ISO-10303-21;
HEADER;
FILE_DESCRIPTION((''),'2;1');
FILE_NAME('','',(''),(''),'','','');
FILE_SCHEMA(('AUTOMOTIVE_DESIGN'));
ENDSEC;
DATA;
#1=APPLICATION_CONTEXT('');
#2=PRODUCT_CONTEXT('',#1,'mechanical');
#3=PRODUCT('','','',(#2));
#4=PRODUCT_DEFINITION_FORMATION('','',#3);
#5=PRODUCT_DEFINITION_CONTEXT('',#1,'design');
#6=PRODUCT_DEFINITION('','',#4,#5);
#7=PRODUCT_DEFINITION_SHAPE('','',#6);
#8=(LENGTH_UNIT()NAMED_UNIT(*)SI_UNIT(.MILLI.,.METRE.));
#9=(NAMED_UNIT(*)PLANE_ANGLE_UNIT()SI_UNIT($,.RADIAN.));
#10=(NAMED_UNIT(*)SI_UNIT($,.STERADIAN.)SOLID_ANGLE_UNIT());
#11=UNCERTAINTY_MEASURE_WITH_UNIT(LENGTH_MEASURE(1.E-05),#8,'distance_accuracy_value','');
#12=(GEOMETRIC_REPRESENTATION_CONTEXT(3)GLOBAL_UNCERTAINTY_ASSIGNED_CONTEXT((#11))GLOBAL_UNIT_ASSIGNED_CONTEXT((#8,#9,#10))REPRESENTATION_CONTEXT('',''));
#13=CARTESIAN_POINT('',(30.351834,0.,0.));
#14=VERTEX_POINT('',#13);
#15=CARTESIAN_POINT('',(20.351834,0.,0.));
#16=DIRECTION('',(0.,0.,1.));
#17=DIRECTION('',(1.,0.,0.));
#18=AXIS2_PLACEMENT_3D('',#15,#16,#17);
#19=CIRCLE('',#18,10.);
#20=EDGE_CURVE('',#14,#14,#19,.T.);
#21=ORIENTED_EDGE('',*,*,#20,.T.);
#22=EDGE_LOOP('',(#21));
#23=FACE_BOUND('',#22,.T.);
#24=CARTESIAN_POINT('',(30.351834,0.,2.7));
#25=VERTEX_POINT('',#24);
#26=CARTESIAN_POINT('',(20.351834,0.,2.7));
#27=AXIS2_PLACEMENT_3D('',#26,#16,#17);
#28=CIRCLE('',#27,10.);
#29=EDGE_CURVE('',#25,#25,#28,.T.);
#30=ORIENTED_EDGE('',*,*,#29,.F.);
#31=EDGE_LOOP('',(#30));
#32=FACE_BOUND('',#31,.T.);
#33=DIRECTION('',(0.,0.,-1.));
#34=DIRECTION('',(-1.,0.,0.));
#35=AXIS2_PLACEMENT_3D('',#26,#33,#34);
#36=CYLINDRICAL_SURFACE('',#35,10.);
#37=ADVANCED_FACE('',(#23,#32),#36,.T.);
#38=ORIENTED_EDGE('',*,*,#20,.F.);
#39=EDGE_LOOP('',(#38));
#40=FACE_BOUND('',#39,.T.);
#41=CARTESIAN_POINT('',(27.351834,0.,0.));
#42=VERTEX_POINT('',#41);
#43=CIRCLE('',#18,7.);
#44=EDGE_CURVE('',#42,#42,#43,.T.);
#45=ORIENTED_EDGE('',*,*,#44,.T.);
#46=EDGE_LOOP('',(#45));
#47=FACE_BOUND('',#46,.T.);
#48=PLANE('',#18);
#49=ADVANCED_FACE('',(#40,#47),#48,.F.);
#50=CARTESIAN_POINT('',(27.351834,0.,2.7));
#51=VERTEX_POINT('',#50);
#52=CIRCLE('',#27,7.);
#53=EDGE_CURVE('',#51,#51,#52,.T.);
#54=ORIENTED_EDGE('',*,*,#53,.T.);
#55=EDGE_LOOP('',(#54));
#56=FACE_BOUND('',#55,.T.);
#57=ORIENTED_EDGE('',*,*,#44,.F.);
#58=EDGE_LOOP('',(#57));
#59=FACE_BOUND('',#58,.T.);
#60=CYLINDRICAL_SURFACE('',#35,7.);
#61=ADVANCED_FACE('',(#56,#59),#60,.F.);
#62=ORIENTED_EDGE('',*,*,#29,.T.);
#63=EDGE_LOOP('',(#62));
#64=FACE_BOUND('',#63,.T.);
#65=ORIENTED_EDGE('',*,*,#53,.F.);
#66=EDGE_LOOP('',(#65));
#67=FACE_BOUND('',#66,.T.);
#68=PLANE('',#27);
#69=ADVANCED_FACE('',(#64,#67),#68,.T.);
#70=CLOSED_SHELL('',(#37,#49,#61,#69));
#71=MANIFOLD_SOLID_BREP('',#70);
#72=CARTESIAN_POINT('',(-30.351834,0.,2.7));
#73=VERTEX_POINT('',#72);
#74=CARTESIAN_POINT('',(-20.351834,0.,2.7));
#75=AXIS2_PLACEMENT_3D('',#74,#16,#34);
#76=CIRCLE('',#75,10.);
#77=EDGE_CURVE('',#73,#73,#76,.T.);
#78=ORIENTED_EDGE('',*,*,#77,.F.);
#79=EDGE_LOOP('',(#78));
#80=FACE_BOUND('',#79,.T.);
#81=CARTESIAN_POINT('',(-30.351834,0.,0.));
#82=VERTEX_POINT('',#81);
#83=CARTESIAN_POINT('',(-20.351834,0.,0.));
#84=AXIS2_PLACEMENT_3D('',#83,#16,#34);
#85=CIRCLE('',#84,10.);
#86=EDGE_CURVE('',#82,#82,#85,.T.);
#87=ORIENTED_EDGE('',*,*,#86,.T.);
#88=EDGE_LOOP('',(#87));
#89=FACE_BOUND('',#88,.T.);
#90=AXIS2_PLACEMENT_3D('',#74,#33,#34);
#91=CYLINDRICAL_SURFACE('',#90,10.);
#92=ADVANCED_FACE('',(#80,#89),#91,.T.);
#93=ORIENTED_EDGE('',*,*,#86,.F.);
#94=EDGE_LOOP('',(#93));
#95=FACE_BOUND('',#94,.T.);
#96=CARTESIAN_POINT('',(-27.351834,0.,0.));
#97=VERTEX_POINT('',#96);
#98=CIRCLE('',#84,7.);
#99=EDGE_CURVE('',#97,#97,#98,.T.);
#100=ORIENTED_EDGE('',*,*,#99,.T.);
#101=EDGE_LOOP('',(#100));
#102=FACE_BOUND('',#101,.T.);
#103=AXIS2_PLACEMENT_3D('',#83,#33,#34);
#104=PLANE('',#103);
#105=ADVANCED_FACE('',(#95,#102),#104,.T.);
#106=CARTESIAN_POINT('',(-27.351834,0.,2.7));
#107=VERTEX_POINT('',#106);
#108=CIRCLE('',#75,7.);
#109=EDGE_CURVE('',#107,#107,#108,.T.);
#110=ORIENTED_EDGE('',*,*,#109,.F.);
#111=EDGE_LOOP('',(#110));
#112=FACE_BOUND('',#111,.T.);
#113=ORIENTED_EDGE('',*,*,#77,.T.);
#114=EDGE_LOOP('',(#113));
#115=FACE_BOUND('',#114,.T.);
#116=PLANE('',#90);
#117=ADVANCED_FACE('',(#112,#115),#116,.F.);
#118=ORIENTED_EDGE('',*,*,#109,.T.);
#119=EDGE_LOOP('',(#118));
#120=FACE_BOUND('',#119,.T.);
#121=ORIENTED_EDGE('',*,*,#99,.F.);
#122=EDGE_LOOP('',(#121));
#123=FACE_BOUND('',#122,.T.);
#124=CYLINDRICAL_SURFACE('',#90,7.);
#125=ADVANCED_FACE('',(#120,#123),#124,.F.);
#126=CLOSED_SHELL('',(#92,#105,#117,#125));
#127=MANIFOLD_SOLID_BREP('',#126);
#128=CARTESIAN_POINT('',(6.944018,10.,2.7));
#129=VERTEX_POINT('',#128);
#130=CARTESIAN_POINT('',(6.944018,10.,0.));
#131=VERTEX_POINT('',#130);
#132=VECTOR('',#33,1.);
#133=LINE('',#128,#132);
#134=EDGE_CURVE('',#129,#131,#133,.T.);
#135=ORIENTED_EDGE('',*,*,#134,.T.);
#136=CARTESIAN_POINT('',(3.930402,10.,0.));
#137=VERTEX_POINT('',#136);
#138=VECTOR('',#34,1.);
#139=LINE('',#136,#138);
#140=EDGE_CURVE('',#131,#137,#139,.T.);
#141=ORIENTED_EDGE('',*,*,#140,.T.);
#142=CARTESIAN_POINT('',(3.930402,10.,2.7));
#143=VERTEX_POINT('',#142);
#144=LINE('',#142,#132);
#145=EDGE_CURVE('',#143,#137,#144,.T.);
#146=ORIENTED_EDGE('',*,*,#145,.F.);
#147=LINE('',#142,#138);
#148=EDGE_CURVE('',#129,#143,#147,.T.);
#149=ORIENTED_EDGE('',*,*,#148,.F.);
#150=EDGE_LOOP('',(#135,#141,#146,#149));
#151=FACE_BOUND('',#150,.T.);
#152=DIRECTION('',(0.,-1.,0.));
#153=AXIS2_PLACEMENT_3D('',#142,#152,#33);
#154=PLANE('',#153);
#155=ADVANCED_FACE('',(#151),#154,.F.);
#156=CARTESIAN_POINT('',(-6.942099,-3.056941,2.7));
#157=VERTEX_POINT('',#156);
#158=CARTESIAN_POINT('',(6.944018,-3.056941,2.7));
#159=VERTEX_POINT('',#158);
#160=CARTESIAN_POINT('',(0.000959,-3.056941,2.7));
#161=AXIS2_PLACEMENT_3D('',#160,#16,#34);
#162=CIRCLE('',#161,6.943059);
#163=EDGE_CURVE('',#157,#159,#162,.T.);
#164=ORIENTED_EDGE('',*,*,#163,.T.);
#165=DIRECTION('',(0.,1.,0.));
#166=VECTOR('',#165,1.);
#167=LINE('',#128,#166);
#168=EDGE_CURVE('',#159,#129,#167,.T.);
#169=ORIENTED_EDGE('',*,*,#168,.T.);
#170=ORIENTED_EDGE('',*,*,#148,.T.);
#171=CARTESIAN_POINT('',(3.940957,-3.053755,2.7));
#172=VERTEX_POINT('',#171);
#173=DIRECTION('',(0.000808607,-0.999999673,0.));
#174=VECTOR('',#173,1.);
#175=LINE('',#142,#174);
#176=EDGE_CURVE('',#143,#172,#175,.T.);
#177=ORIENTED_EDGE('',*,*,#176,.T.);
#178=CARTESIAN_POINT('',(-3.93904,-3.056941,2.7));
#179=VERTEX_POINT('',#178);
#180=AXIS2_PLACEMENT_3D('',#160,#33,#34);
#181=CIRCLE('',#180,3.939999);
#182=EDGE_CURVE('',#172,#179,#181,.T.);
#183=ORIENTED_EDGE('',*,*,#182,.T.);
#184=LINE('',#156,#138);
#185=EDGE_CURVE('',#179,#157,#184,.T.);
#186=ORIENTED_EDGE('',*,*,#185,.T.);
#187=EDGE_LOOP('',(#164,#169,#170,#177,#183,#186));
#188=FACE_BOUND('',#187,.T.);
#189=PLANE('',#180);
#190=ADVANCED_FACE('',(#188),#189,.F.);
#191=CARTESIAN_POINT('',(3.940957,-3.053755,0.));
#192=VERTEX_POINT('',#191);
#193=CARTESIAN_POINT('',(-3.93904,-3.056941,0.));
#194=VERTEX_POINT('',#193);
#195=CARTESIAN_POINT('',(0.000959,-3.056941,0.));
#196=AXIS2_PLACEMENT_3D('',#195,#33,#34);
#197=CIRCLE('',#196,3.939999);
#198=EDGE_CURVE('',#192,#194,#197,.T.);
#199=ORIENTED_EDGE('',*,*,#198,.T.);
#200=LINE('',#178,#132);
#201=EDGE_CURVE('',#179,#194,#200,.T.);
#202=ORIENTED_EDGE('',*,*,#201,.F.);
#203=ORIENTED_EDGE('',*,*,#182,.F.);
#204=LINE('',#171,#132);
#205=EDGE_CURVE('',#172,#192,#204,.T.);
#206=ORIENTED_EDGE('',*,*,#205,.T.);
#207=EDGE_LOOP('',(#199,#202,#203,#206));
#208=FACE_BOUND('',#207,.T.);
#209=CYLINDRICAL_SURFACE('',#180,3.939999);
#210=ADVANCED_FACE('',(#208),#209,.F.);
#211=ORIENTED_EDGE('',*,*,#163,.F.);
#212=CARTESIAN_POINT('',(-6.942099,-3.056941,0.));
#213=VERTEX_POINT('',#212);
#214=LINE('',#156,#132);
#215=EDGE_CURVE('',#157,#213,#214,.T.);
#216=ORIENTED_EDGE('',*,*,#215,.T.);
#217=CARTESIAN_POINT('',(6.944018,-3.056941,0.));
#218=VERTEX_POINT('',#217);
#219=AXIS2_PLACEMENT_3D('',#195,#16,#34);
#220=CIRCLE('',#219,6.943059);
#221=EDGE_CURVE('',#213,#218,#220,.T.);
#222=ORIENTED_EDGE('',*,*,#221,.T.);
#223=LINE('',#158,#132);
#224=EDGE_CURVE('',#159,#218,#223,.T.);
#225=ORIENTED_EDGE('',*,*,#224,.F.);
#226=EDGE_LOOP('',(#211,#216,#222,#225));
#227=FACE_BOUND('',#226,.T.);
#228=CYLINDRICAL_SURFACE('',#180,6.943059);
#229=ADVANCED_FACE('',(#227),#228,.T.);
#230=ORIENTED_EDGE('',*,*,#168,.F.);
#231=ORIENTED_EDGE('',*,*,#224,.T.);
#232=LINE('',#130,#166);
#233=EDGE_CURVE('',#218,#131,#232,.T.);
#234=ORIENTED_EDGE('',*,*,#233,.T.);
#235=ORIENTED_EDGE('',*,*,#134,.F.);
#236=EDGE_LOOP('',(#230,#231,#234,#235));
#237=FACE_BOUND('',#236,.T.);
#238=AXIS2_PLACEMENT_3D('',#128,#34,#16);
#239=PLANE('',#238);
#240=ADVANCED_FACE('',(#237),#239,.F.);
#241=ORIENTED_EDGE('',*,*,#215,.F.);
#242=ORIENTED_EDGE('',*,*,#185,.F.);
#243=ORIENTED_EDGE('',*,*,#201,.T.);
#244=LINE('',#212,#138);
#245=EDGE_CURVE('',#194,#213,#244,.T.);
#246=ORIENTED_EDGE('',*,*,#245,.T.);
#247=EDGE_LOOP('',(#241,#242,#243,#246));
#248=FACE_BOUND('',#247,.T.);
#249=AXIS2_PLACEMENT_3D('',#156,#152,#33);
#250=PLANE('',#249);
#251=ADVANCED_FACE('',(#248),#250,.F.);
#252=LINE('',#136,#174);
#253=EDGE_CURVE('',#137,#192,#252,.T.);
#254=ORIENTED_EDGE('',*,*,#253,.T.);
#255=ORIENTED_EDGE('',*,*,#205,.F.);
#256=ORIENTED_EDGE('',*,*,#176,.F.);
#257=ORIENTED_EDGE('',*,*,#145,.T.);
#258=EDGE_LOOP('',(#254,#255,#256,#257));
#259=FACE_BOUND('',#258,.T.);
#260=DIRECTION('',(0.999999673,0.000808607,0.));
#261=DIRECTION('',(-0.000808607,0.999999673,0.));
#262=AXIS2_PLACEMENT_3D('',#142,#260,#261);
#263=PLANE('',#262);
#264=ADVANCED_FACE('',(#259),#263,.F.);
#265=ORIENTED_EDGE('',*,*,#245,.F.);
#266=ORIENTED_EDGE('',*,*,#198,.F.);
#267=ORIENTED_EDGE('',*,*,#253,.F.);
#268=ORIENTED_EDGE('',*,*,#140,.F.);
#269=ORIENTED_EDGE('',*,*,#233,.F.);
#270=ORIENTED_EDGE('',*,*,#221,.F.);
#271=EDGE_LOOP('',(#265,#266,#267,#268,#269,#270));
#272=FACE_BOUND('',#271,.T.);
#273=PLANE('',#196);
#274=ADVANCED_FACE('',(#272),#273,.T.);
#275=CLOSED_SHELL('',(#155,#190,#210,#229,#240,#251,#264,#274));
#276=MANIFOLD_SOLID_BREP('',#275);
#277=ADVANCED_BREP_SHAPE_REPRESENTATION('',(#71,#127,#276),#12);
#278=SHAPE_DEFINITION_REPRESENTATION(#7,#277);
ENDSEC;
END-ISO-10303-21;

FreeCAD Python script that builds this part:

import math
import FreeCAD as App
import Part
import Sketcher

doc = App.newDocument("Part")
body = doc.addObject("PartDesign::Body", "Body")

# Sketch on XY plane
sketch1 = body.newObject("Sketcher::SketchObject", "Sketch")
sketch1.AttachmentSupport = (doc.getObject("XY_Plane"), [""])
sketch1.MapMode = "FlatFace"
sketch1.addGeometry([
    Part.Circle(App.Vector(20, 0, 0), App.Vector(0, 0, 1), 10),
    Part.Circle(App.Vector(20, 0, 0), App.Vector(0, 0, 1), 7),
], False)
sketch1.addConstraint([
    Sketcher.Constraint("Coincident", 1, 3, 0, 3),
    Sketcher.Constraint("PointOnObject", 0, 3, -1),
    Sketcher.Constraint("Diameter", 0, 20.0),
    Sketcher.Constraint("Diameter", 1, 14.0),
    Sketcher.Constraint("DistanceX", -1, 1, 0, 3, 20.351834),
])
pad1 = body.newObject("PartDesign::Pad", "Pad")
pad1.Profile = sketch1
pad1.Length = 2.7
body2 = doc.addObject("PartDesign::Body", "Body001")

# Sketch on XY plane
sketch2 = body2.newObject("Sketcher::SketchObject", "Sketch001")
sketch2.AttachmentSupport = (doc.getObject("XY_Plane001"), [""])
sketch2.MapMode = "FlatFace"
sketch2.addGeometry([
    Part.Circle(App.Vector(-20, 0, 0), App.Vector(0, 0, 1), 10),
    Part.Circle(App.Vector(-20, 0, 0), App.Vector(0, 0, 1), 7),
], False)
sketch2.addConstraint([
    Sketcher.Constraint("Coincident", 1, 3, 0, 3),
    Sketcher.Constraint("PointOnObject", 0, 3, -1),
    Sketcher.Constraint("Diameter", 0, 20.0),
    Sketcher.Constraint("Diameter", 1, 14.0),
    Sketcher.Constraint("DistanceX", 0, 3, -1, 1, 20.351834),
])
pad2 = body2.newObject("PartDesign::Pad", "Pad001")
pad2.Profile = sketch2
pad2.Length = 2.7
body3 = doc.addObject("PartDesign::Body", "Body002")

# Sketch on XY plane
sketch3 = body3.newObject("Sketcher::SketchObject", "Sketch002")
sketch3.AttachmentSupport = (doc.getObject("XY_Plane002"), [""])
sketch3.MapMode = "FlatFace"
sketch3.addGeometry([
    Part.LineSegment(App.Vector(6.9, 10, 0), App.Vector(3.9, 10, 0)),  # 0
    Part.LineSegment(App.Vector(3.9, 10, 0), App.Vector(3.9, -3.1, 0)),  # 1
    Part.ArcOfCircle(Part.Circle(App.Vector(0, -3.1, 0), App.Vector(0, 0, 1), 3.9), math.radians(180), math.radians(360)),  # 2
    Part.LineSegment(App.Vector(-3.9, -3.1, 0), App.Vector(-6.9, -3.1, 0)),  # 3
    Part.ArcOfCircle(Part.Circle(App.Vector(0, -3.1, 0), App.Vector(0, 0, 1), 6.9), math.radians(-180), math.radians(0)),  # 4
    Part.LineSegment(App.Vector(6.9, -3.1, 0), App.Vector(6.9, 10, 0)),  # 5
], False)
sketch3.addConstraint([
    Sketcher.Constraint("Coincident", 0, 2, 1, 1),
    Sketcher.Constraint("Tangent", 1, 2, 2, 2),
    Sketcher.Constraint("Coincident", 2, 1, 3, 1),
    Sketcher.Constraint("Coincident", 3, 2, 4, 1),
    Sketcher.Constraint("Tangent", 4, 2, 5, 1),
    Sketcher.Constraint("Coincident", 5, 2, 0, 1),
    Sketcher.Constraint("Horizontal", 0),
    Sketcher.Constraint("Horizontal", 3),
    Sketcher.Constraint("Vertical", 5),
    Sketcher.Constraint("Coincident", 4, 3, 2, 3),
    Sketcher.Constraint("Horizontal", 4, 3, 2, 1),
    Sketcher.Constraint("Radius", 2, 3.939999),
    Sketcher.Constraint("DistanceY", -1, 1, 0, 2, 10.0),
    Sketcher.Constraint("Radius", 4, 6.943059),
    Sketcher.Constraint("DistanceY", 5, 1, 5, 2, 13.056941),
    Sketcher.Constraint("DistanceX", 3, 2, -1, 1, 6.942099),
    Sketcher.Constraint("DistanceX", 3, 2, 0, 2, 10.872502),
])
pad3 = body3.newObject("PartDesign::Pad", "Pad002")
pad3.Profile = sketch3
pad3.Length = 2.7

doc.recompute()
